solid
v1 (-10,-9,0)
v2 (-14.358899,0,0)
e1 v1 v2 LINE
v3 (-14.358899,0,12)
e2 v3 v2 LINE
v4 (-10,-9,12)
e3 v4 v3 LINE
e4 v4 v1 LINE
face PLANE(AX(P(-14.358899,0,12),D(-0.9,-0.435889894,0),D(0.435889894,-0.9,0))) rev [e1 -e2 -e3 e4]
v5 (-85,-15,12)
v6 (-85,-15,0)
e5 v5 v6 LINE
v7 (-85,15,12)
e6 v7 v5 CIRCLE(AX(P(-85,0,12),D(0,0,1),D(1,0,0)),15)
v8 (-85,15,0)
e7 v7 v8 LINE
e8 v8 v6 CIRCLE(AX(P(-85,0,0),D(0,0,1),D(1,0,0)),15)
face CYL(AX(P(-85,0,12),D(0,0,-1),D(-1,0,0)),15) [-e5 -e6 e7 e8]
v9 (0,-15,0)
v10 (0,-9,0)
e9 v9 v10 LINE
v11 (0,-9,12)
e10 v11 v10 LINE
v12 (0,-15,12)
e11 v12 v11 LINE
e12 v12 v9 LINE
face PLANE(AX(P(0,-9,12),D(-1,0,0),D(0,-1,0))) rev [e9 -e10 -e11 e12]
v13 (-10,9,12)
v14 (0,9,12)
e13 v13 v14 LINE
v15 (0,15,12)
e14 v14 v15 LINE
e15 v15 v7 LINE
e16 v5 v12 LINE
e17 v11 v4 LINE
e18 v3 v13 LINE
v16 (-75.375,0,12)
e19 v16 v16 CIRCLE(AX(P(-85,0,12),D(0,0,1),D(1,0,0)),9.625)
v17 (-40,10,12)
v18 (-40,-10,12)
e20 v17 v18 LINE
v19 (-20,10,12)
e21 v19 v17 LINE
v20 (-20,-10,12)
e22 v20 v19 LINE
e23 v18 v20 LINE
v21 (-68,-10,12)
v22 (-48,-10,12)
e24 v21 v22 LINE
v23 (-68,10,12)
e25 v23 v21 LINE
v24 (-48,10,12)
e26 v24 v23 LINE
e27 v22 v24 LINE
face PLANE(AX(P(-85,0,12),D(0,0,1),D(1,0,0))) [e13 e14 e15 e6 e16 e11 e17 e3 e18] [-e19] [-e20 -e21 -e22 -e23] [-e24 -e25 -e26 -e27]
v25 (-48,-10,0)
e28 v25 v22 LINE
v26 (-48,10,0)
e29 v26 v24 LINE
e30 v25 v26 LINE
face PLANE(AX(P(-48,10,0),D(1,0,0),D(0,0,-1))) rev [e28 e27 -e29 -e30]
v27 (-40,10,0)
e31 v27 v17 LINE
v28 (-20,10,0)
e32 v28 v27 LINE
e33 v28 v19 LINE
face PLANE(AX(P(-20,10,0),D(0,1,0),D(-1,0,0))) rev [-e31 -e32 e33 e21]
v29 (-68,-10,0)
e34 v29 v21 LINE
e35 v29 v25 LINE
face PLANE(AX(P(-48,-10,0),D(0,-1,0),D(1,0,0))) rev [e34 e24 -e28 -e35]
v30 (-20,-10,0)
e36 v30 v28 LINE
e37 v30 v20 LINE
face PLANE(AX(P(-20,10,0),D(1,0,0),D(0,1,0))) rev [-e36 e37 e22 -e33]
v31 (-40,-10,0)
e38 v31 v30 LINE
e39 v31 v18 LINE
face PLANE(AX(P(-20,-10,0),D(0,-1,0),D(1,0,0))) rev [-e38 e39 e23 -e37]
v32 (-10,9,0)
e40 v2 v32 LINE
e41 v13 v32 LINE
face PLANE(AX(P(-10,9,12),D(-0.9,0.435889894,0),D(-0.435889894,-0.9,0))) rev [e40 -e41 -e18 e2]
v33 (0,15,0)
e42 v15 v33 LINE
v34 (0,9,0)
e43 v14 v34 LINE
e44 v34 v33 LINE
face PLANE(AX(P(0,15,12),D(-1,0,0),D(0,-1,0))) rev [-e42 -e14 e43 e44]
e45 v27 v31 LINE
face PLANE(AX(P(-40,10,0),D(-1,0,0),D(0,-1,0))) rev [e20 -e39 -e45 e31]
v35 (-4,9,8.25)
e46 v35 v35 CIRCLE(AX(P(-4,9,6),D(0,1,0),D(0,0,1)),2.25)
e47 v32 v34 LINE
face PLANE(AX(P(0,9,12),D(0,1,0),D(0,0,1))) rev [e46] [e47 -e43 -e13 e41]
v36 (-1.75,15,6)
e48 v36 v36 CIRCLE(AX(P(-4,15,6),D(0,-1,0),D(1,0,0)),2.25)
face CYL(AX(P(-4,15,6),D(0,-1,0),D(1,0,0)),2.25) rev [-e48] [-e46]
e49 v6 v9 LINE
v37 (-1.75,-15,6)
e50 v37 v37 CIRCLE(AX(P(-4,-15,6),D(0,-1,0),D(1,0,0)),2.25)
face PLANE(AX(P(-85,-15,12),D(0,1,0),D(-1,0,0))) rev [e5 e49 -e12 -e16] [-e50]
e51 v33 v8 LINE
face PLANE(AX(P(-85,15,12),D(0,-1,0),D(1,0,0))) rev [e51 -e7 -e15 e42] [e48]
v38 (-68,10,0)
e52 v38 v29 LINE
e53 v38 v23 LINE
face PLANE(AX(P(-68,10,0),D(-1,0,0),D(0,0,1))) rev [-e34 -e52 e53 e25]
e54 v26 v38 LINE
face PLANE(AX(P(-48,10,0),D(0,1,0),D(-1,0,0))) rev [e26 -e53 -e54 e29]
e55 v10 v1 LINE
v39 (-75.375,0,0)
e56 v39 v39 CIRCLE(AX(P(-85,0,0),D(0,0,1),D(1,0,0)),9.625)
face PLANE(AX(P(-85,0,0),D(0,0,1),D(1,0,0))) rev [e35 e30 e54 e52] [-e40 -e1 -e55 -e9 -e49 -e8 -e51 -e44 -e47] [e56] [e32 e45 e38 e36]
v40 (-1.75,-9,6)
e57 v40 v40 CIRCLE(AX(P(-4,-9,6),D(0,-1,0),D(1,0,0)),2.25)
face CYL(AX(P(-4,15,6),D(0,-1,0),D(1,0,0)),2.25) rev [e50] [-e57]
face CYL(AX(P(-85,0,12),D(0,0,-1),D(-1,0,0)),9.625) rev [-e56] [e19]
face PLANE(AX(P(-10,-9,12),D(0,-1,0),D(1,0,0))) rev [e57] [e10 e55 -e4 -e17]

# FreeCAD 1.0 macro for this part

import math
import FreeCAD as App
import Part
import Sketcher
from FreeCAD import Vector


def add_polygon(sketch, points):
    """Adds a closed chain of lines whose ends are joined by coincident constraints."""
    first, n = sketch.GeometryCount, len(points)
    for a, b in zip(points, points[1:] + points[:1]):
        sketch.addGeometry(Part.LineSegment(App.Vector(*a, 0), App.Vector(*b, 0)), False)
    for i in range(n):
        sketch.addConstraint(Sketcher.Constraint("Coincident", first + i, 2, first + (i + 1) % n, 1))

doc = App.newDocument("Part")
body = doc.addObject("PartDesign::Body", "Body")

# Sketch on XY plane
sketch1 = doc.addObject("Sketcher::SketchObject", "Sketch")
body.addObject(sketch1)
sketch1.AttachmentSupport = (doc.XY_Plane, [""])
sketch1.MapMode = "FlatFace"
sketch1.addGeometry([
    Part.LineSegment(Vector(0, 15, 0), Vector(-85, 15, 0)),  # 0
    Part.ArcOfCircle(Part.Circle(Vector(-85, 0, 0), Vector(0, 0, 1), 15), math.radians(90), math.radians(270)),  # 1
    Part.LineSegment(Vector(-85, -15, 0), Vector(0, -15, 0)),  # 2
    Part.LineSegment(Vector(0, -15, 0), Vector(0, -9, 0)),  # 3
    Part.LineSegment(Vector(0, -9, 0), Vector(-10, -9, 0)),  # 4
    Part.LineSegment(Vector(-10, -9, 0), Vector(-14, 0, 0)),  # 5
    Part.LineSegment(Vector(-14, 0, 0), Vector(-10, 9, 0)),  # 6
    Part.LineSegment(Vector(-10, 9, 0), Vector(0, 9, 0)),  # 7
    Part.LineSegment(Vector(0, 9, 0), Vector(0, 15, 0)),  # 8
    Part.Circle(Vector(-85, 0, 0), Vector(0, 0, 1), 10),  # 9
], False)
sketch1.addConstraint([
    Sketcher.Constraint("Tangent", 0, 2, 1, 1),
    Sketcher.Constraint("Tangent", 1, 2, 2, 1),
    Sketcher.Constraint("Coincident", 2, 2, 3, 1),
    Sketcher.Constraint("Coincident", 3, 2, 4, 1),
    Sketcher.Constraint("Coincident", 4, 2, 5, 1),
    Sketcher.Constraint("Coincident", 5, 2, 6, 1),
    Sketcher.Constraint("Coincident", 6, 2, 7, 1),
    Sketcher.Constraint("Coincident", 7, 2, 8, 1),
    Sketcher.Constraint("Coincident", 8, 2, 0, 1),
    Sketcher.Constraint("Horizontal", 0),
    Sketcher.Constraint("Horizontal", 2),
    Sketcher.Constraint("Vertical", 3),
    Sketcher.Constraint("Horizontal", 4),
    Sketcher.Constraint("Horizontal", 7),
    Sketcher.Constraint("Vertical", 8),
    Sketcher.Constraint("Coincident", 9, 3, 1, 3),
    Sketcher.Constraint("Symmetric", 3, 2, 7, 2, -1, 1),
    Sketcher.Constraint("Symmetric", 2, 2, 8, 2, -1),
    Sketcher.Constraint("PointOnObject", 5, 2, -1),
    Sketcher.Constraint("Vertical", 4, 2, 6, 2),
    Sketcher.Constraint("Radius", 1, 15.0),
    Sketcher.Constraint("Diameter", 9, 19.25),
    Sketcher.Constraint("DistanceX", 0, 2, 0, 1, 85.0),
    Sketcher.Constraint("DistanceX", 4, 2, 4, 1, 10.0),
    Sketcher.Constraint("DistanceY", 3, 1, 3, 2, 6.0),
    Sketcher.Constraint("Distance", 5, 10.0),
])
pad1 = doc.addObject("PartDesign::Pad", "Pad")
body.addObject(pad1)
pad1.Profile = sketch1
pad1.Length = 12

# Sketch on XZ plane
sketch2 = doc.addObject("Sketcher::SketchObject", "Sketch001")
body.addObject(sketch2)
sketch2.AttachmentSupport = (doc.XZ_Plane, [""])
sketch2.MapMode = "FlatFace"
sketch2.AttachmentOffset = App.Placement(Vector(0, 0, 15), App.Rotation())
sketch2.addGeometry(Part.Circle(Vector(-4, 6, 0), Vector(0, 0, 1), 2.2), False)
sketch2.addConstraint([
    Sketcher.Constraint("Diameter", 0, 4.5),
    Sketcher.Constraint("DistanceX", 0, 3, -1, 1, 4.0),
    Sketcher.Constraint("DistanceY", -1, 1, 0, 3, 6.0),
])
pocket1 = doc.addObject("PartDesign::Pocket", "Pocket")
body.addObject(pocket1)
pocket1.Profile = sketch2
pocket1.Type = "ThroughAll"

# Sketch on XY plane
sketch3 = doc.addObject("Sketcher::SketchObject", "Sketch002")
body.addObject(sketch3)
sketch3.AttachmentSupport = (doc.XY_Plane, [""])
sketch3.MapMode = "FlatFace"
sketch3.AttachmentOffset = App.Placement(Vector(0, 0, 12), App.Rotation())
add_polygon(sketch3, [(-40, 10), (-40, -10), (-20, -10), (-20, 10)])  # lines 0-3
add_polygon(sketch3, [(-68, 10), (-68, -10), (-48, -10), (-48, 10)])  # lines 4-7
sketch3.addConstraint([
    Sketcher.Constraint("Vertical", 0),
    Sketcher.Constraint("Horizontal", 1),
    Sketcher.Constraint("Vertical", 2),
    Sketcher.Constraint("Horizontal", 3),
    Sketcher.Constraint("Vertical", 4),
    Sketcher.Constraint("Horizontal", 5),
    Sketcher.Constraint("Vertical", 6),
    Sketcher.Constraint("Horizontal", 7),
    Sketcher.Constraint("Horizontal", 1, 2, 4, 2),
    Sketcher.Constraint("Horizontal", 3, 2, 6, 2),
    Sketcher.Constraint("Equal", 3, 5),
    Sketcher.Constraint("Equal", 7, 0),
    Sketcher.Constraint("DistanceX", 1, 1, 1, 2, 20.0),
    Sketcher.Constraint("DistanceX", 0, 2, -1, 1, 40.0),
    Sketcher.Constraint("DistanceY", 0, 2, -1, 1, 10.0),
    Sketcher.Constraint("DistanceX", 4, 2, -1, 1, 68.0),
])
pocket2 = doc.addObject("PartDesign::Pocket", "Pocket001")
body.addObject(pocket2)
pocket2.Profile = sketch3
pocket2.Type = "ThroughAll"

doc.recompute()
